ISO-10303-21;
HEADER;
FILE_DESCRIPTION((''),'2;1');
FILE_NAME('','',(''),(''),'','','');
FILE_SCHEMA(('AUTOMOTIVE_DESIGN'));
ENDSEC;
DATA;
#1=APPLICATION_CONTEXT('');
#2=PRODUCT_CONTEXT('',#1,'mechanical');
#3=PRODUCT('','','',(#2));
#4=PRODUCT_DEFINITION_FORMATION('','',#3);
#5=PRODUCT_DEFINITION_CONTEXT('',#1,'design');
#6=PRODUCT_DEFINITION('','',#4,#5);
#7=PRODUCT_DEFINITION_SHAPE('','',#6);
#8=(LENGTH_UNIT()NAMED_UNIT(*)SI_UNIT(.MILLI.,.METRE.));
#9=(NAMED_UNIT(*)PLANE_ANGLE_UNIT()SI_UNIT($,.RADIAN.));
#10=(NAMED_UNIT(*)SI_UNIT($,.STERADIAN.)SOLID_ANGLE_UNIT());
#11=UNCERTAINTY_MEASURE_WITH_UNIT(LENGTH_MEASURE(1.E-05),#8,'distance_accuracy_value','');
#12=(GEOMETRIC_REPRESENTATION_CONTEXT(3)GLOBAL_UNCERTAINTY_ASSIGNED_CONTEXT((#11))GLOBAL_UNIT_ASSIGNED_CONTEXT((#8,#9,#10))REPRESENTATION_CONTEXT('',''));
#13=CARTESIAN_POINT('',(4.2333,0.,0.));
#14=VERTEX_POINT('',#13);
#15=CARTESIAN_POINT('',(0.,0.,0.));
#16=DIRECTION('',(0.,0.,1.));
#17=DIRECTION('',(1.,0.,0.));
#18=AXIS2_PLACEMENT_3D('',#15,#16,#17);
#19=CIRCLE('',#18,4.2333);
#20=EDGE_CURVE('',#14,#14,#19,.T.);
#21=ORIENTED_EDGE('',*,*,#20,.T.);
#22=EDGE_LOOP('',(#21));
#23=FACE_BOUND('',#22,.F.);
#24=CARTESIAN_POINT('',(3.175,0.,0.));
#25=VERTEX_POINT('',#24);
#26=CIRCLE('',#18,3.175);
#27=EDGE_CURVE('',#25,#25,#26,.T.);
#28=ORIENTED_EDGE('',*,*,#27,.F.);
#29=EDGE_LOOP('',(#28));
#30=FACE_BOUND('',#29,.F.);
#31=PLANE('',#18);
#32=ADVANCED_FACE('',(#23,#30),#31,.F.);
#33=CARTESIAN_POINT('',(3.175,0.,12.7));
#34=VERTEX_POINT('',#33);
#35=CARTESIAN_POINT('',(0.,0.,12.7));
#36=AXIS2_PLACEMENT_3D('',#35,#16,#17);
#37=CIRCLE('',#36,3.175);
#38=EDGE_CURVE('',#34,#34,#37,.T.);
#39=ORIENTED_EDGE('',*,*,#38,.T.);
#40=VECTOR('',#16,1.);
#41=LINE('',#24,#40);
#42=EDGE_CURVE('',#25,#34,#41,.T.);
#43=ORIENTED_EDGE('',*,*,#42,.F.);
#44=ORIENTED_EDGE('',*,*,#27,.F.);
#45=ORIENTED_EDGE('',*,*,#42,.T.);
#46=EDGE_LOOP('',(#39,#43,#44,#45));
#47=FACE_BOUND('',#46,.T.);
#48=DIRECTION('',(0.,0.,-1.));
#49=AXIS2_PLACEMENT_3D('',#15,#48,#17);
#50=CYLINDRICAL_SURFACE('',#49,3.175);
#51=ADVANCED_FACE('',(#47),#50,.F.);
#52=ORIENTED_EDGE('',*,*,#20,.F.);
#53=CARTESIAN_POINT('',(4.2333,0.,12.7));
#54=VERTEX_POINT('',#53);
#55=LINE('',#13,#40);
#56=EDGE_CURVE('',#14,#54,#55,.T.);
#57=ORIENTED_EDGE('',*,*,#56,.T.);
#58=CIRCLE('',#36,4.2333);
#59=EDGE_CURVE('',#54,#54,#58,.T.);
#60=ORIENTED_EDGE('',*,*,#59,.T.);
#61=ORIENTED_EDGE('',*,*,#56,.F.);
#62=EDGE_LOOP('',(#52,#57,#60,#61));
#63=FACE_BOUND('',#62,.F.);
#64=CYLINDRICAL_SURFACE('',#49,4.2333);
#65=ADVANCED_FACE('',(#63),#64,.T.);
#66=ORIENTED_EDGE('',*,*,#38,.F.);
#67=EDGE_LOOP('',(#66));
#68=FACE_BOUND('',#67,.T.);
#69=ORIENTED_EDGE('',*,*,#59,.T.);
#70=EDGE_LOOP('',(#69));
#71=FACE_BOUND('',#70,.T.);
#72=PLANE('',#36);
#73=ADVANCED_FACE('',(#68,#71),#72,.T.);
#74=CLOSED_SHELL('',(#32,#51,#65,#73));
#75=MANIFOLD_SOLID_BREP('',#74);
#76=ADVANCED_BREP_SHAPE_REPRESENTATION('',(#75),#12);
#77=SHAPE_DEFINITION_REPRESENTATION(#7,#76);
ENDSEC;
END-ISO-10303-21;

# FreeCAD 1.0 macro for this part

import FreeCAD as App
import Part
import Sketcher
from FreeCAD import Vector
Q = App.Units.Quantity

doc = App.newDocument("Part")
body = doc.addObject("PartDesign::Body", "Body")

# Sketch on XY plane
sketch1 = body.newObject("Sketcher::SketchObject", "Sketch")
sketch1.AttachmentSupport = (doc.getObject("XY_Plane"), [""])
sketch1.MapMode = "FlatFace"
sketch1.addGeometry(Part.Circle(Vector(0, 0, 0), Vector(0, 0, 1), 4.2333), False)
sketch1.addGeometry(Part.Circle(Vector(0, 0, 0), Vector(0, 0, 1), 3.175), False)
sketch1.addConstraint(Sketcher.Constraint("Coincident", 0, 3, -1, 1))
sketch1.addConstraint(Sketcher.Constraint("Coincident", 1, 3, -1, 1))
sketch1.addConstraint(Sketcher.Constraint("Diameter", 1, Q("0.25 in")))
sketch1.addConstraint(Sketcher.Constraint("Diameter", 0, 8.4666))
pad1 = body.newObject("PartDesign::Pad", "Pad")
pad1.Profile = sketch1
pad1.Length = Q("0.5 in")

doc.recompute()
